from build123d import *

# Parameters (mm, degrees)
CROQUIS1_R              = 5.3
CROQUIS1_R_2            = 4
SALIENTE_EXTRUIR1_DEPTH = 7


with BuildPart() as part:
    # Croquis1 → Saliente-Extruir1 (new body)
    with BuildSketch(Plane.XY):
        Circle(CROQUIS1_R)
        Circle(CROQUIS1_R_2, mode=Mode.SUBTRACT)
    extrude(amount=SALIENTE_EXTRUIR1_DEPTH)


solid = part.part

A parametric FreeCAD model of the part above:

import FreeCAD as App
import Part
import Sketcher
from FreeCAD import Vector
Q = App.Units.Quantity

doc = App.newDocument("Part")
body = doc.addObject("PartDesign::Body", "Body")

# Sketch on XY plane
sketch1 = doc.addObject("Sketcher::SketchObject", "Sketch")
body.addObject(sketch1)
sketch1.AttachmentSupport = (doc.XY_Plane, [""])
sketch1.MapMode = "FlatFace"
sketch1.addGeometry(Part.Circle(Vector(0, 0, 0), Vector(0, 0, 1), 5.3), False)
sketch1.addGeometry(Part.Circle(Vector(0, 0, 0), Vector(0, 0, 1), 4), False)
sketch1.addConstraint(Sketcher.Constraint("Coincident", 0, 3, -1, 1))
sketch1.addConstraint(Sketcher.Constraint("Coincident", 1, 3, -1, 1))
sketch1.addConstraint(Sketcher.Constraint("Diameter", 1, Q("8 mm")))
sketch1.addConstraint(Sketcher.Constraint("Diameter", 0, Q("10.6 mm")))
pad1 = doc.addObject("PartDesign::Pad", "Pad")
body.addObject(pad1)
pad1.Profile = sketch1
pad1.Length = 7

doc.recompute()
